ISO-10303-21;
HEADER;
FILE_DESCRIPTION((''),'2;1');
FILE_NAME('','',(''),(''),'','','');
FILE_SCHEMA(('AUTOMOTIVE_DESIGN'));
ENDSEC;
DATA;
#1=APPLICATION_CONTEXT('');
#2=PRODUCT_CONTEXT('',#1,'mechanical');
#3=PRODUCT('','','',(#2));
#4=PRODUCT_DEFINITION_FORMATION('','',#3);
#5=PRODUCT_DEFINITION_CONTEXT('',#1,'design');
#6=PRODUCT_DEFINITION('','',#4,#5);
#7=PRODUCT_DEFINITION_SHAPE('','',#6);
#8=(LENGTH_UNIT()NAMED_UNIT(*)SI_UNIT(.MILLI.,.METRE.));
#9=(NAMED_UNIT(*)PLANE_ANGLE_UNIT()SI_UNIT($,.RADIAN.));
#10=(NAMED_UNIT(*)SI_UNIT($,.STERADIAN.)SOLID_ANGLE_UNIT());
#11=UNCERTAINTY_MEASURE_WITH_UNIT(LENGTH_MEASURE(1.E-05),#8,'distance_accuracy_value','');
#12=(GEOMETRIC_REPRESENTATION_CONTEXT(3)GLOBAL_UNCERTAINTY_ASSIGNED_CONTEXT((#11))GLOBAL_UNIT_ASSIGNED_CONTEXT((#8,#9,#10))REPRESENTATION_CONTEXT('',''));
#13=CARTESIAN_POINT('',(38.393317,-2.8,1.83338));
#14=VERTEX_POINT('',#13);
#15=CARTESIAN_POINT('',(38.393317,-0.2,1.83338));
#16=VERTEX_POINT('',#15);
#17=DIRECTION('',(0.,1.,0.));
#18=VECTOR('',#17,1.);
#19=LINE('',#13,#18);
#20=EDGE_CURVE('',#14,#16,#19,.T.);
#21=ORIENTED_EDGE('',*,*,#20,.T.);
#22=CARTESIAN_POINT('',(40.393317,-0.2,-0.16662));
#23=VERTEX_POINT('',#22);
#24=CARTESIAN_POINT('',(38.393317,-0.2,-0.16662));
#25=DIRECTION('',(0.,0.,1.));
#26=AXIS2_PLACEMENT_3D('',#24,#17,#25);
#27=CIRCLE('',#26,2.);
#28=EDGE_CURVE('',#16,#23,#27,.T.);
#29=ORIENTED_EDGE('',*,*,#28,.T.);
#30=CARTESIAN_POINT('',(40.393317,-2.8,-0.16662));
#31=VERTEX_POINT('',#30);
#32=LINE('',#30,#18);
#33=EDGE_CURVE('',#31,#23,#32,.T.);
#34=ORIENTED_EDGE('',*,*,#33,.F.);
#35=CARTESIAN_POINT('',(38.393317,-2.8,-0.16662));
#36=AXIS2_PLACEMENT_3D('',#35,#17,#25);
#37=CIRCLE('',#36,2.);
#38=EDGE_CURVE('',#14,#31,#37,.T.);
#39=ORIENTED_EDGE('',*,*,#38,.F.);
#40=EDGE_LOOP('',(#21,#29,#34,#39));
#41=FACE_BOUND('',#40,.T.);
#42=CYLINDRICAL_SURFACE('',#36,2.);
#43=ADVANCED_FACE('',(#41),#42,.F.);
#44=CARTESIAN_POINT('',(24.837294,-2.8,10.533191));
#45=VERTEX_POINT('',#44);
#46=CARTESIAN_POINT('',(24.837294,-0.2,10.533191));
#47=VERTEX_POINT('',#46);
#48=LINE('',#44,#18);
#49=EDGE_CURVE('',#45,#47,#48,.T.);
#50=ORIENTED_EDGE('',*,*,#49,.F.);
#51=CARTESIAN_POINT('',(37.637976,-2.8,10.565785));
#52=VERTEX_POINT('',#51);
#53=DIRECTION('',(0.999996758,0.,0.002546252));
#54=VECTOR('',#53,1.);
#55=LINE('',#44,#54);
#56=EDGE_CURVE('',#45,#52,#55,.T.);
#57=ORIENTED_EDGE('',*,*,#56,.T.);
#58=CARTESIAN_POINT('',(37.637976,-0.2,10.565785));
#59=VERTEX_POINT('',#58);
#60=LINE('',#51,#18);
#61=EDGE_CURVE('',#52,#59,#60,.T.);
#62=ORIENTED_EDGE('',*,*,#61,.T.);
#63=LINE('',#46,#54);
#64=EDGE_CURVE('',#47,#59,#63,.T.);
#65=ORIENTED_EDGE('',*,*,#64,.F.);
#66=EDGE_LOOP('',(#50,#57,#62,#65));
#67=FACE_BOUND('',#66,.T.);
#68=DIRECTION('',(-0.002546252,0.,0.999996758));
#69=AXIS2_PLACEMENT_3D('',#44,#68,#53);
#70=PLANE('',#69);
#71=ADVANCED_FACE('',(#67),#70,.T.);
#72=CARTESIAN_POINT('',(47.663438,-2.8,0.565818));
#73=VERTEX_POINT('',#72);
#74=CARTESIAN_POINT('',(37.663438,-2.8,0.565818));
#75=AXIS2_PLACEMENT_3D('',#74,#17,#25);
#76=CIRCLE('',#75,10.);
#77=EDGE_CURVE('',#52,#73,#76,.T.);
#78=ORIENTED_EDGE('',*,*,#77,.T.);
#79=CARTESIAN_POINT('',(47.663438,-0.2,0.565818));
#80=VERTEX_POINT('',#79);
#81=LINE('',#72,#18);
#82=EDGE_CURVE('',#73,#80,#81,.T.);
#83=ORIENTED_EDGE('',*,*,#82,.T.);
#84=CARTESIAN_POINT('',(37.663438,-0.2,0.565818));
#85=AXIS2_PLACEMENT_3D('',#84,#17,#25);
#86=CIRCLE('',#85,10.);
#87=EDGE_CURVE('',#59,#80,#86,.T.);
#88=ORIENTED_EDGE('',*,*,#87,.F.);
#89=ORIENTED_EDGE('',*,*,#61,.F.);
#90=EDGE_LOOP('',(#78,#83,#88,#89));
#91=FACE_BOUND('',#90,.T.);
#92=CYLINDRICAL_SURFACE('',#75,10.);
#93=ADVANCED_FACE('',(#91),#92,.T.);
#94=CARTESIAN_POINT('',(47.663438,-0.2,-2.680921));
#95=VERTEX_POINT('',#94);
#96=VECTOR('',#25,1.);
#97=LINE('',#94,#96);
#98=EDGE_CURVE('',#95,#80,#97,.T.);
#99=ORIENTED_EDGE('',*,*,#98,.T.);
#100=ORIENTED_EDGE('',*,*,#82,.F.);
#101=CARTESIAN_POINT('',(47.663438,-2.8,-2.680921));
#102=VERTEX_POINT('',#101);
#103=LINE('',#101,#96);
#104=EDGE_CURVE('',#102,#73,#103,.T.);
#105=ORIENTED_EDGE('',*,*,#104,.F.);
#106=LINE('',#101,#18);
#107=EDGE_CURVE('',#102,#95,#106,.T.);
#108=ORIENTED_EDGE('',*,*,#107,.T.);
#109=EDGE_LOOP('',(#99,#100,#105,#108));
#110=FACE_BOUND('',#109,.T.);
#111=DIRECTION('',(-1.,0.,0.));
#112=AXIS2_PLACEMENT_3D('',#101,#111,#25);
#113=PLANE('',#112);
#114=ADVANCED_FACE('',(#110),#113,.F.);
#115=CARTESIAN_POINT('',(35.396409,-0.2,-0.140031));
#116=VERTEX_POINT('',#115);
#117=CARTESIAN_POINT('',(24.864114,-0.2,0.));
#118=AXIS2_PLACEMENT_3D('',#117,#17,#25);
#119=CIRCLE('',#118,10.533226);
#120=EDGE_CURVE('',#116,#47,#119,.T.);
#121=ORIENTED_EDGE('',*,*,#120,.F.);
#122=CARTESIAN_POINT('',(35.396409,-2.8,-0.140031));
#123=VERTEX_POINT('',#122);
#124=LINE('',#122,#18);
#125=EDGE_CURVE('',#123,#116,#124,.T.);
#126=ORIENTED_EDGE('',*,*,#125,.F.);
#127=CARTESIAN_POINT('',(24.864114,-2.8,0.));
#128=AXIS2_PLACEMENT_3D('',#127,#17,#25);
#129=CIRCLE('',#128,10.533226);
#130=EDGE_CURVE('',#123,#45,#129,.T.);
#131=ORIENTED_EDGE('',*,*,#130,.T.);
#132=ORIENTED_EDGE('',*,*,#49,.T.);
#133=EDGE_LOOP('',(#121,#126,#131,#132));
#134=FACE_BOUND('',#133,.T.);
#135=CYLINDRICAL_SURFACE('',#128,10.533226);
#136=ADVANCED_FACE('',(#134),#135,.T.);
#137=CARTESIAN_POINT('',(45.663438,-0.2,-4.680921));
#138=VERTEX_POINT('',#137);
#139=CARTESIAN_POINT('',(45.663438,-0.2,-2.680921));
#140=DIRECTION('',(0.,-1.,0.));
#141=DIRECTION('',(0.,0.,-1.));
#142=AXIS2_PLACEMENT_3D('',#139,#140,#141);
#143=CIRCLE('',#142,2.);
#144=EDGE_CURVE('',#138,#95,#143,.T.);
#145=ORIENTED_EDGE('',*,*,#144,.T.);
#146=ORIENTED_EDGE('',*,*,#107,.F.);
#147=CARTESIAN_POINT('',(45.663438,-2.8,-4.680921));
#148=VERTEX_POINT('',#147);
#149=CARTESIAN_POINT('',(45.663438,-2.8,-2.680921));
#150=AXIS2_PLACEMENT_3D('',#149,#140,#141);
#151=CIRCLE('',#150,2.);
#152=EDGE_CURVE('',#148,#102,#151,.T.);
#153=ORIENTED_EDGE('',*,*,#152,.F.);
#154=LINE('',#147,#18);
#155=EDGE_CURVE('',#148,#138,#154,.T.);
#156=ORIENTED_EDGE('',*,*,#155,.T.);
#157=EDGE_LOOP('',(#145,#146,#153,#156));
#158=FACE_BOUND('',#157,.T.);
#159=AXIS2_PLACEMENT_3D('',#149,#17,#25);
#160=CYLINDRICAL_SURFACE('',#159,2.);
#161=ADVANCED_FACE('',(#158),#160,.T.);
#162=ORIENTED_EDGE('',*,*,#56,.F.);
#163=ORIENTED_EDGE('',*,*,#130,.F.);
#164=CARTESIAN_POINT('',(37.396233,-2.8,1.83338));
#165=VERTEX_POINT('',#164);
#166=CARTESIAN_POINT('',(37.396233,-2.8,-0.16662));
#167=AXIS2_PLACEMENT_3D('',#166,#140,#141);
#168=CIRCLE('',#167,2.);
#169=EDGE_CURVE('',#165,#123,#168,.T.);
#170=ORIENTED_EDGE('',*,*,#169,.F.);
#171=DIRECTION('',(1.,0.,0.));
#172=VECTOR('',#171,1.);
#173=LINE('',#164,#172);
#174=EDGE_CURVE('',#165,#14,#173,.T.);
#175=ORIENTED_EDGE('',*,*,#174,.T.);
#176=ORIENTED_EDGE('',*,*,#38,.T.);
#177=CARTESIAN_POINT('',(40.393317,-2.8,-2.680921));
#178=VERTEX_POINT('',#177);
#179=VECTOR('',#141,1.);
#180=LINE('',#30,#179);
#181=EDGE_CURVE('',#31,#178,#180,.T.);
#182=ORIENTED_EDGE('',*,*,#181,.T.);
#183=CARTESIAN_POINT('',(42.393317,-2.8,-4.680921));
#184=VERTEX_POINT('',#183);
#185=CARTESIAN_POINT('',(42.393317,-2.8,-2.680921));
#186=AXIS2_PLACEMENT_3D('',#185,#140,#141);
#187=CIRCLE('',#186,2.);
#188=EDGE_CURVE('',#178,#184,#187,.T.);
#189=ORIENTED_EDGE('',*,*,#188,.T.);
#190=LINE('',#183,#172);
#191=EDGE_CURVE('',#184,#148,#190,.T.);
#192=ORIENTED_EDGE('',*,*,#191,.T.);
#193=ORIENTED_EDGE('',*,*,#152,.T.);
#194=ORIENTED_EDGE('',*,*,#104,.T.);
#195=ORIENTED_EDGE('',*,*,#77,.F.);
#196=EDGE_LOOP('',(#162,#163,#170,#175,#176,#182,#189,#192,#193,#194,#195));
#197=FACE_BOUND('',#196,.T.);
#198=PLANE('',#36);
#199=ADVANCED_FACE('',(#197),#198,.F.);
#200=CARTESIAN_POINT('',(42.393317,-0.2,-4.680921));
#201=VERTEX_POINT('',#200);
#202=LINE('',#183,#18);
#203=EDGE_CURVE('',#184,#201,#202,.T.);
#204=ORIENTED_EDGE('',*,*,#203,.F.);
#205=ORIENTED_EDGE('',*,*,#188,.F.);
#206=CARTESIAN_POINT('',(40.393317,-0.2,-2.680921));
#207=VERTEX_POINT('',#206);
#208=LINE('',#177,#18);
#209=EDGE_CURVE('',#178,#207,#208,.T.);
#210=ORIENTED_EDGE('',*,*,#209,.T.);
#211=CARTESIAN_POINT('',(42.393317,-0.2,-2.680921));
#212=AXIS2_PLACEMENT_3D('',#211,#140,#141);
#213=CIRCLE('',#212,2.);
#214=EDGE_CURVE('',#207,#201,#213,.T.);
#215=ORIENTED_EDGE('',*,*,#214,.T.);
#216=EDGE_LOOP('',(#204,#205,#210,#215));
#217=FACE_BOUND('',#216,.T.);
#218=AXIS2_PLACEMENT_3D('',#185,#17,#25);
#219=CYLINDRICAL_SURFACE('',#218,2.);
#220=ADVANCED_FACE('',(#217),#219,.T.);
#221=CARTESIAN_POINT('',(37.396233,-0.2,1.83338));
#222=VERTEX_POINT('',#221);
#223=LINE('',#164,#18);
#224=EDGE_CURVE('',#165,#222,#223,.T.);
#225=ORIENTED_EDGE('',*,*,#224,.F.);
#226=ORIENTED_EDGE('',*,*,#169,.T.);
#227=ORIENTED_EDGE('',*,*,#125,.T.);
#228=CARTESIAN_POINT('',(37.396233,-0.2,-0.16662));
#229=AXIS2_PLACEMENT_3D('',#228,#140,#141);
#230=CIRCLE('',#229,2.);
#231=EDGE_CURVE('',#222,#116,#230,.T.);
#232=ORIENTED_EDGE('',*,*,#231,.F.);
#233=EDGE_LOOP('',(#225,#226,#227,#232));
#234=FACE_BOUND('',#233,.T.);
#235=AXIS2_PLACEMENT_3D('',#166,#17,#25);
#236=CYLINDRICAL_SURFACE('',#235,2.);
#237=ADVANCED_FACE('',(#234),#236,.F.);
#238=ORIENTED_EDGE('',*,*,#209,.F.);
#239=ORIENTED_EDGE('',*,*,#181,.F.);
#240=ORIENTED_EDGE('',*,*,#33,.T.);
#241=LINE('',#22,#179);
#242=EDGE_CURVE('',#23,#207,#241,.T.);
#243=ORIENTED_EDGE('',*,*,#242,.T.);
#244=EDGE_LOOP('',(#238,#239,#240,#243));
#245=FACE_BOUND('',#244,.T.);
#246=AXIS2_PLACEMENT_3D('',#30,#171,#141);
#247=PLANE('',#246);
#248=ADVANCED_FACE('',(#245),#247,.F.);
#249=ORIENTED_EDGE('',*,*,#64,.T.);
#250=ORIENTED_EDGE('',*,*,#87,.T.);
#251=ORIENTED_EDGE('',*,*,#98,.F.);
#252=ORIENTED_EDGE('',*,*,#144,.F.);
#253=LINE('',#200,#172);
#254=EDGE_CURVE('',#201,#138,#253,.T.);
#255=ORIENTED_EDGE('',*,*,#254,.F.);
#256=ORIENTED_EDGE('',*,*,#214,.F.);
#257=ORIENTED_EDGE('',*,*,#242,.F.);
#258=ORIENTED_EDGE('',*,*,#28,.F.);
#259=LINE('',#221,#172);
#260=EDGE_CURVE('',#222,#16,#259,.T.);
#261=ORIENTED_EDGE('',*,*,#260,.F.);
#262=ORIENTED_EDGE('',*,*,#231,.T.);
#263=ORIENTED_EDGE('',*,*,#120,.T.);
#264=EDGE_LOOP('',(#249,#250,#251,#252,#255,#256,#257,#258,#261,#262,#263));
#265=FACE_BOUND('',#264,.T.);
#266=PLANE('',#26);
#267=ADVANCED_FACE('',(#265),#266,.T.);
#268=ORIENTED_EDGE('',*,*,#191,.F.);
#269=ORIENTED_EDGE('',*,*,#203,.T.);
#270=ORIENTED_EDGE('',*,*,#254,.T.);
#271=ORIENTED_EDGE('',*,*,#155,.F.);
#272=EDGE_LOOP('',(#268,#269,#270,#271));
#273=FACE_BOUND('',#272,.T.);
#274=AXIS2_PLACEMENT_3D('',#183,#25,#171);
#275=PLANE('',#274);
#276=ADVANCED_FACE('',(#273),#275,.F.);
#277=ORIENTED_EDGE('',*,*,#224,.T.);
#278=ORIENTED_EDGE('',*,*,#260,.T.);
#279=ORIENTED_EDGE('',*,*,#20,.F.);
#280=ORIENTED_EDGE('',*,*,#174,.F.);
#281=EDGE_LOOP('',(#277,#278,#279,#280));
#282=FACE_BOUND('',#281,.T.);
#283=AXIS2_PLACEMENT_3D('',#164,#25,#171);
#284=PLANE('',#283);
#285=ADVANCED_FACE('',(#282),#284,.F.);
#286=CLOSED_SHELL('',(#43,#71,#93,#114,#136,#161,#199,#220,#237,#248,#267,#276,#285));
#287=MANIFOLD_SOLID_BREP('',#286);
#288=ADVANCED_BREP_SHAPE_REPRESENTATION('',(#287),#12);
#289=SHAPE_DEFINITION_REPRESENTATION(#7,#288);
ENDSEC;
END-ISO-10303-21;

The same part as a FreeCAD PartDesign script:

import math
import FreeCAD as App
import Part
import Sketcher
from FreeCAD import Vector
Q = App.Units.Quantity

doc = App.newDocument("Part")
body = doc.addObject("PartDesign::Body", "Body")

sketch1 = body.newObject("Sketcher::SketchObject", "Sketch")
sketch1.AttachmentSupport = (doc.getObject("XZ_Plane"), [""])
sketch1.MapMode = "FlatFace"
sketch1.AttachmentOffset = App.Placement(Vector(0, 0, 0.2), App.Rotation())
sketch1.addGeometry(Part.LineSegment(Vector(24.8, 10.5, 0), Vector(37.6, 10.6, 0)), False)
sketch1.addGeometry(Part.ArcOfCircle(Part.Circle(Vector(37.7, 0.6, 0), Vector(0, 0, 1), 10), math.radians(0), math.radians(90)), False)
sketch1.addGeometry(Part.LineSegment(Vector(47.7, 0.6, 0), Vector(47.7, -2.7, 0)), False)
sketch1.addGeometry(Part.ArcOfCircle(Part.Circle(Vector(45.7, -2.7, 0), Vector(0, 0, 1), 2), math.radians(-90), math.radians(0)), False)
sketch1.addGeometry(Part.LineSegment(Vector(45.7, -4.7, 0), Vector(42.4, -4.7, 0)), False)
sketch1.addGeometry(Part.ArcOfCircle(Part.Circle(Vector(42.4, -2.7, 0), Vector(0, 0, 1), 2), math.radians(180), math.radians(270)), False)
sketch1.addGeometry(Part.LineSegment(Vector(40.4, -2.7, 0), Vector(40.4, -0.2, 0)), False)
sketch1.addGeometry(Part.ArcOfCircle(Part.Circle(Vector(38.4, -0.2, 0), Vector(0, 0, 1), 2), math.radians(0), math.radians(90)), False)
sketch1.addGeometry(Part.LineSegment(Vector(38.4, 1.8, 0), Vector(37.4, 1.8, 0)), False)
sketch1.addGeometry(Part.ArcOfCircle(Part.Circle(Vector(37.4, -0.2, 0), Vector(0, 0, 1), 2), math.radians(90), math.radians(179)), False)
sketch1.addGeometry(Part.ArcOfCircle(Part.Circle(Vector(24.9, 0, 0), Vector(0, 0, 1), 10.5), math.radians(90), math.radians(359)), False)
sketch1.addConstraint(Sketcher.Constraint("Tangent", 0, 2, 1, 2))
sketch1.addConstraint(Sketcher.Constraint("Tangent", 1, 1, 2, 1))
sketch1.addConstraint(Sketcher.Constraint("Tangent", 2, 2, 3, 2))
sketch1.addConstraint(Sketcher.Constraint("Tangent", 3, 1, 4, 1))
sketch1.addConstraint(Sketcher.Constraint("Tangent", 4, 2, 5, 2))
sketch1.addConstraint(Sketcher.Constraint("Tangent", 5, 1, 6, 1))
sketch1.addConstraint(Sketcher.Constraint("Tangent", 6, 2, 7, 1))
sketch1.addConstraint(Sketcher.Constraint("Tangent", 7, 2, 8, 1))
sketch1.addConstraint(Sketcher.Constraint("Tangent", 8, 2, 9, 1))
sketch1.addConstraint(Sketcher.Constraint("Tangent", 9, 2, 10, 2))
sketch1.addConstraint(Sketcher.Constraint("Tangent", 10, 1, 0, 1))
sketch1.addConstraint(Sketcher.Constraint("Vertical", 2))
sketch1.addConstraint(Sketcher.Constraint("Horizontal", 4))
sketch1.addConstraint(Sketcher.Constraint("Vertical", 6))
sketch1.addConstraint(Sketcher.Constraint("Horizontal", 8))
sketch1.addConstraint(Sketcher.Constraint("Equal", 3, 5))
sketch1.addConstraint(Sketcher.Constraint("Equal", 5, 7))
sketch1.addConstraint(Sketcher.Constraint("Equal", 7, 9))
sketch1.addConstraint(Sketcher.Constraint("PointOnObject", 10, 3, -1))
sketch1.addConstraint(Sketcher.Constraint("Radius", 1, Q("10 mm")))
sketch1.addConstraint(Sketcher.Constraint("Radius", 3, Q("2 mm")))
sketch1.addConstraint(Sketcher.Constraint("DistanceY", 6, 1, 6, 2, Q("2.514301 mm")))
sketch1.addConstraint(Sketcher.Constraint("Radius", 10, Q("10.533226 mm")))
sketch1.addConstraint(Sketcher.Constraint("DistanceX", 4, 2, 4, 1, Q("3.270121 mm")))
sketch1.addConstraint(Sketcher.Constraint("DistanceY", 2, 2, 2, 1, Q("3.246738 mm")))
sketch1.addConstraint(Sketcher.Constraint("DistanceX", 8, 2, 8, 1, Q("0.997085 mm")))
sketch1.addConstraint(Sketcher.Constraint("DistanceX", -1, 1, 1, 3, Q("37.663438 mm")))
sketch1.addConstraint(Sketcher.Constraint("DistanceY", 3, 3, -1, 1, Q("2.680921 mm")))
pad1 = body.newObject("PartDesign::Pad", "Pad")
pad1.Profile = sketch1
pad1.Length = 2.6

doc.recompute()
